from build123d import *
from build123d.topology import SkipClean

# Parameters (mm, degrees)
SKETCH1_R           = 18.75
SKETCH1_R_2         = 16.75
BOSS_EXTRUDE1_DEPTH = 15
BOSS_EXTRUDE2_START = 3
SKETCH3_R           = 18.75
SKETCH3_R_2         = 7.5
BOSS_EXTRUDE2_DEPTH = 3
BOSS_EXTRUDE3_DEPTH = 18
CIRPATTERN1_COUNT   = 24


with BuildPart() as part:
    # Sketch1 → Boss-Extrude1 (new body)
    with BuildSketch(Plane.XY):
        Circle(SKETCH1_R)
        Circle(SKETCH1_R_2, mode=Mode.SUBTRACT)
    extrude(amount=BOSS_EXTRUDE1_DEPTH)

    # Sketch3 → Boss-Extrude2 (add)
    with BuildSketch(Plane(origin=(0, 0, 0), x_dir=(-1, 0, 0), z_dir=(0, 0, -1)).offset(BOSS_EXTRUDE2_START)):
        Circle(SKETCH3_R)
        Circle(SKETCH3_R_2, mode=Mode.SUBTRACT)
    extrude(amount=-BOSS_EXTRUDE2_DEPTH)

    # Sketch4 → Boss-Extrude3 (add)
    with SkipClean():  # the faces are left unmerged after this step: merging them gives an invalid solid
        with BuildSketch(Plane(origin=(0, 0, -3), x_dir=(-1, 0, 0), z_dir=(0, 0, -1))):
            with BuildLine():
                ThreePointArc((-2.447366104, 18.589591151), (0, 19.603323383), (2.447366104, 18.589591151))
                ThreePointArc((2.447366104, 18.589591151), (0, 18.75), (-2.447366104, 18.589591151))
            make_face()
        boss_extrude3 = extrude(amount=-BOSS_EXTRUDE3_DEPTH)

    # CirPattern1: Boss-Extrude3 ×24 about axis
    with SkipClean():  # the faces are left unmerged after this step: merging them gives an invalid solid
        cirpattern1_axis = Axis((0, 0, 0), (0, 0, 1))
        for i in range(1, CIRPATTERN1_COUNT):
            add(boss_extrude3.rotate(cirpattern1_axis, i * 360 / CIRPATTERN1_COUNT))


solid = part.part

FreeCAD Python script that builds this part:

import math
import FreeCAD as App
import Part
import Sketcher

V = App.Vector

doc = App.newDocument("Part")
body = doc.addObject("PartDesign::Body", "Body")

# Sketch on XY plane
sketch1 = body.newObject("Sketcher::SketchObject", "Sketch")
sketch1.AttachmentSupport = (doc.getObject("XY_Plane"), [""])
sketch1.MapMode = "FlatFace"
sketch1.addGeometry(Part.Circle(V(0, 0, 0), V(0, 0, 1), 18.75), False)
sketch1.addGeometry(Part.Circle(V(0, 0, 0), V(0, 0, 1), 16.75), False)
sketch1.addConstraint(Sketcher.Constraint("Coincident", 0, 3, -1, 1))
sketch1.addConstraint(Sketcher.Constraint("Coincident", 1, 3, -1, 1))
sketch1.addConstraint(Sketcher.Constraint("Diameter", 0, 37.5))
sketch1.addConstraint(Sketcher.Constraint("Diameter", 1, 33.5))
pad1 = body.newObject("PartDesign::Pad", "Pad")
pad1.Profile = sketch1
pad1.Length = 15

# Sketch on XY plane
sketch2 = body.newObject("Sketcher::SketchObject", "Sketch001")
sketch2.AttachmentSupport = (doc.getObject("XY_Plane"), [""])
sketch2.MapMode = "FlatFace"
sketch2.AttachmentOffset = App.Placement(V(0, 0, -3), App.Rotation())
sketch2.addGeometry(Part.Circle(V(0, 0, 0), V(0, 0, 1), 18.75), False)
sketch2.addGeometry(Part.Circle(V(0, 0, 0), V(0, 0, 1), 7.5), False)
sketch2.addConstraint(Sketcher.Constraint("Coincident", 0, 3, -1, 1))
sketch2.addConstraint(Sketcher.Constraint("Coincident", 1, 3, -1, 1))
sketch2.addConstraint(Sketcher.Constraint("Diameter", 1, 15.0))
sketch2.addConstraint(Sketcher.Constraint("Diameter", 0, 37.5))
pad2 = body.newObject("PartDesign::Pad", "Pad001")
pad2.Profile = sketch2
pad2.Length = 3

# Sketch on XY plane
sketch3 = body.newObject("Sketcher::SketchObject", "Sketch002")
sketch3.AttachmentSupport = (doc.getObject("XY_Plane"), [""])
sketch3.MapMode = "FlatFace"
sketch3.AttachmentOffset = App.Placement(V(0, 0, -3), App.Rotation())
sketch3.addGeometry(Part.ArcOfCircle(Part.Circle(V(0, 16.142225, 0), V(0, 0, 1), 3.461098), math.radians(45), math.radians(135)), False)
sketch3.addGeometry(Part.ArcOfCircle(Part.Circle(V(0, 0, 0), V(0, 0, 1), 18.75), math.radians(82.5), math.radians(97.5)), False)
sketch3.addConstraint(Sketcher.Constraint("Coincident", 0, 1, 1, 1))
sketch3.addConstraint(Sketcher.Constraint("Coincident", 1, 2, 0, 2))
sketch3.addConstraint(Sketcher.Constraint("Coincident", 1, 3, -1, 1))
sketch3.addConstraint(Sketcher.Constraint("PointOnObject", 0, 3, -2))
sketch3.addConstraint(Sketcher.Constraint("Radius", 1, 18.75))
sketch3.addConstraint(Sketcher.Constraint("Radius", 0, 3.461098))
sketch3.addConstraint(Sketcher.Constraint("DistanceY", -1, 1, 0, 1, 18.589591))
pad3 = body.newObject("PartDesign::Pad", "Pad002")
pad3.Profile = sketch3
pad3.Length = 18
doc.recompute()

polarpattern = body.newObject("PartDesign::PolarPattern", "PolarPattern")
polarpattern.Originals = [pad3]
polarpattern.Axis = (doc.getObject("Z_Axis"), [""])
polarpattern.Angle = 360
polarpattern.Occurrences = 24
body.Tip = polarpattern

doc.recompute()
